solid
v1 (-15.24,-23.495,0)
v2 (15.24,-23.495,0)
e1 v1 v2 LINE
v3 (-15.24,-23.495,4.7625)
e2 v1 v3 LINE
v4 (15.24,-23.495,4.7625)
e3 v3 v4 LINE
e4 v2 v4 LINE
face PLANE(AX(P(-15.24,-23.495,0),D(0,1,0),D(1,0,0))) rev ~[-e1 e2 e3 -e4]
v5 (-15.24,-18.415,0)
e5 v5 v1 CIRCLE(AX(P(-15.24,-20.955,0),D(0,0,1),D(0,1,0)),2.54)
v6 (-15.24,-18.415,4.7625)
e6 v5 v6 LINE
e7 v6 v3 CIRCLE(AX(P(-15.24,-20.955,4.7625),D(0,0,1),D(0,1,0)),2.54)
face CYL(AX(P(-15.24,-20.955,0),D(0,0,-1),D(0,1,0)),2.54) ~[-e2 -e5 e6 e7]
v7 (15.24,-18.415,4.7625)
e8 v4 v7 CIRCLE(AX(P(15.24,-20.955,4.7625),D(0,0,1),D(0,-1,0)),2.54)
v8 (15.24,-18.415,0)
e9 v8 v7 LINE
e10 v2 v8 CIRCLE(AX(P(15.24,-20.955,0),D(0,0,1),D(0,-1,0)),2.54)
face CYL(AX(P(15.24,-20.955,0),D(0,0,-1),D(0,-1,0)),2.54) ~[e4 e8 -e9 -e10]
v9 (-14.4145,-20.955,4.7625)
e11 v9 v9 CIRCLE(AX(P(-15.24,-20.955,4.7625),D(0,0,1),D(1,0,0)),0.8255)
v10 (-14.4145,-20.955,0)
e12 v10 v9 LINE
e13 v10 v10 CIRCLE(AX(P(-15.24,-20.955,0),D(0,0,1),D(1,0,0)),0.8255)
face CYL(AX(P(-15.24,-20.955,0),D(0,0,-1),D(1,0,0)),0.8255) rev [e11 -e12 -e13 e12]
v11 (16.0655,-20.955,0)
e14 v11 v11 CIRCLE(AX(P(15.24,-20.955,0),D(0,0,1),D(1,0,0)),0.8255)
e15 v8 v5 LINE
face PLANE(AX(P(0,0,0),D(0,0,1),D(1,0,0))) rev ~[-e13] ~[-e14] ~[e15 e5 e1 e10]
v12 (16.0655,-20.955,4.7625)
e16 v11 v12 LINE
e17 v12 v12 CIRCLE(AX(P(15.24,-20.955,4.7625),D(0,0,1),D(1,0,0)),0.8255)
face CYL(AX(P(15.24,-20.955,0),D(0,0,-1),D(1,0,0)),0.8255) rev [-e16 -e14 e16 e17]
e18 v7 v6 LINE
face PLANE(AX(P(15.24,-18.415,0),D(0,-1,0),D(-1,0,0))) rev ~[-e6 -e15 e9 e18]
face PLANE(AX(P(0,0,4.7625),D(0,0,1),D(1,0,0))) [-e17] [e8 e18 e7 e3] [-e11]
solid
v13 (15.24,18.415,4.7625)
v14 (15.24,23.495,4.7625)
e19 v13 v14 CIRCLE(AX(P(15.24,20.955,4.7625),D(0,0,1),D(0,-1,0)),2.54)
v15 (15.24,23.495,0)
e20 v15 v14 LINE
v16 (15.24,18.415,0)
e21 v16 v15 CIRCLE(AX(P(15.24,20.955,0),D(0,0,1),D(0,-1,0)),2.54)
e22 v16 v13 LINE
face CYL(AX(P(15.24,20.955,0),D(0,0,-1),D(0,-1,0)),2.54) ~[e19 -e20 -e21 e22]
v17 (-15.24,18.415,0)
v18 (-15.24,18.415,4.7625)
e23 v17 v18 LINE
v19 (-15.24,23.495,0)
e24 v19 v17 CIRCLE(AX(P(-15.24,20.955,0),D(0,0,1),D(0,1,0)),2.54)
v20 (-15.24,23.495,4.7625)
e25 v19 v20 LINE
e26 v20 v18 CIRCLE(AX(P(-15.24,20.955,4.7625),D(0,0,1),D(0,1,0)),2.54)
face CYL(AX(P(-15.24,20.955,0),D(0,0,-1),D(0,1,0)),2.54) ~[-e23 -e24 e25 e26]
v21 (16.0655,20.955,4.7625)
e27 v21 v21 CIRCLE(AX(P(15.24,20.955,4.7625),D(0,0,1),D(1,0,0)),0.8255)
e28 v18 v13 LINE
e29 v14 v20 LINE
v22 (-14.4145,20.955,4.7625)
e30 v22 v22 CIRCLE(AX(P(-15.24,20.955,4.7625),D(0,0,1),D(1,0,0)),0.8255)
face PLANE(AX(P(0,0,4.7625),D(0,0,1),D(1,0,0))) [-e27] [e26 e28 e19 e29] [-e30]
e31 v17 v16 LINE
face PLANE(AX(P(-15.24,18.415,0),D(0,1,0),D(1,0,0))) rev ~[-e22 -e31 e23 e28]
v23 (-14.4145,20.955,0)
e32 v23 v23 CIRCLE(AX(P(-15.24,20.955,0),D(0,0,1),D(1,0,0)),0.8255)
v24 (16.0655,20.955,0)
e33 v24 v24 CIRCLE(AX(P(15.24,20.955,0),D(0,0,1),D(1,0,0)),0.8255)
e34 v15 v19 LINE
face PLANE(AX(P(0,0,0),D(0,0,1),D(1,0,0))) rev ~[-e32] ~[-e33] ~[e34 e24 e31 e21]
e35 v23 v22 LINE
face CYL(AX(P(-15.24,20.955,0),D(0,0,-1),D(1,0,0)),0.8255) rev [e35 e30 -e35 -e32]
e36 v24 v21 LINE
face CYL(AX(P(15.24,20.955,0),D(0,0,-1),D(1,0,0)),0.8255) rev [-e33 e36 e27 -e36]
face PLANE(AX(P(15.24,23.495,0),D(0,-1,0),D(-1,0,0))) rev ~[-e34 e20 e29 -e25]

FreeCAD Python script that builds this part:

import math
import FreeCAD as App
import Part
import Sketcher
from FreeCAD import Vector
Q = App.Units.Quantity

doc = App.newDocument("Part")
body = doc.addObject("PartDesign::Body", "Body")
body.AllowCompound = True

sketch1 = body.newObject("Sketcher::SketchObject", "Sketch")
sketch1.AttachmentSupport = (doc.getObject("XY_Plane"), [""])
sketch1.MapMode = "FlatFace"
sketch1.addGeometry([
    Part.ArcOfCircle(Part.Circle(Vector(-15.2, 21, 0), Vector(0, 0, 1), 2.5), math.radians(90), math.radians(270)),
    Part.LineSegment(Vector(-15.2, 18.4, 0), Vector(15.2, 18.4, 0)),
    Part.ArcOfCircle(Part.Circle(Vector(15.2, 21, 0), Vector(0, 0, 1), 2.5), math.radians(-90), math.radians(90)),
    Part.LineSegment(Vector(15.2, 23.5, 0), Vector(-15.2, 23.5, 0)),
    Part.Circle(Vector(-15.2, 21, 0), Vector(0, 0, 1), 0.8),
    Part.Circle(Vector(15.2, 21, 0), Vector(0, 0, 1), 0.8),
    Part.ArcOfCircle(Part.Circle(Vector(-15.2, -21, 0), Vector(0, 0, 1), 2.5), math.radians(90), math.radians(270)),
    Part.LineSegment(Vector(-15.2, -23.5, 0), Vector(15.2, -23.5, 0)),
    Part.ArcOfCircle(Part.Circle(Vector(15.2, -21, 0), Vector(0, 0, 1), 2.5), math.radians(-90), math.radians(90)),
    Part.LineSegment(Vector(15.2, -18.4, 0), Vector(-15.2, -18.4, 0)),
    Part.Circle(Vector(-15.2, -21, 0), Vector(0, 0, 1), 0.8),
    Part.Circle(Vector(15.2, -21, 0), Vector(0, 0, 1), 0.8),
], False)
sketch1.addConstraint([
    Sketcher.Constraint("Tangent", 0, 2, 1, 1),
    Sketcher.Constraint("Tangent", 1, 2, 2, 1),
    Sketcher.Constraint("Tangent", 2, 2, 3, 1),
    Sketcher.Constraint("Tangent", 3, 2, 0, 1),
    Sketcher.Constraint("Tangent", 6, 2, 7, 1),
    Sketcher.Constraint("Tangent", 7, 2, 8, 1),
    Sketcher.Constraint("Tangent", 8, 2, 9, 1),
    Sketcher.Constraint("Tangent", 9, 2, 6, 1),
    Sketcher.Constraint("Horizontal", 1),
    Sketcher.Constraint("Horizontal", 3),
    Sketcher.Constraint("Horizontal", 7),
    Sketcher.Constraint("Horizontal", 9),
    Sketcher.Constraint("Coincident", 4, 3, 0, 3),
    Sketcher.Constraint("Coincident", 5, 3, 2, 3),
    Sketcher.Constraint("Coincident", 10, 3, 6, 3),
    Sketcher.Constraint("Coincident", 11, 3, 8, 3),
    Sketcher.Constraint("Equal", 4, 5),
    Sketcher.Constraint("Equal", 2, 6),
    Sketcher.Constraint("Equal", 5, 10),
    Sketcher.Constraint("Equal", 10, 11),
    Sketcher.Constraint("Symmetric", 2, 3, 6, 3, -1, 1),
    Sketcher.Constraint("Vertical", 4, 3, 6, 3),
    Sketcher.Constraint("Vertical", 5, 3, 8, 3),
    Sketcher.Constraint("Radius", 0, Q("0.1 in")),
    Sketcher.Constraint("Diameter", 4, Q("0.065 in")),
    Sketcher.Constraint("DistanceX", 1, 1, 1, 2, Q("1.2 in")),
    Sketcher.Constraint("DistanceY", 6, 3, 0, 3, Q("1.65 in")),
])
pad1 = body.newObject("PartDesign::Pad", "Pad")
pad1.Profile = sketch1
pad1.Length = Q("0.1875 in")

doc.recompute()
